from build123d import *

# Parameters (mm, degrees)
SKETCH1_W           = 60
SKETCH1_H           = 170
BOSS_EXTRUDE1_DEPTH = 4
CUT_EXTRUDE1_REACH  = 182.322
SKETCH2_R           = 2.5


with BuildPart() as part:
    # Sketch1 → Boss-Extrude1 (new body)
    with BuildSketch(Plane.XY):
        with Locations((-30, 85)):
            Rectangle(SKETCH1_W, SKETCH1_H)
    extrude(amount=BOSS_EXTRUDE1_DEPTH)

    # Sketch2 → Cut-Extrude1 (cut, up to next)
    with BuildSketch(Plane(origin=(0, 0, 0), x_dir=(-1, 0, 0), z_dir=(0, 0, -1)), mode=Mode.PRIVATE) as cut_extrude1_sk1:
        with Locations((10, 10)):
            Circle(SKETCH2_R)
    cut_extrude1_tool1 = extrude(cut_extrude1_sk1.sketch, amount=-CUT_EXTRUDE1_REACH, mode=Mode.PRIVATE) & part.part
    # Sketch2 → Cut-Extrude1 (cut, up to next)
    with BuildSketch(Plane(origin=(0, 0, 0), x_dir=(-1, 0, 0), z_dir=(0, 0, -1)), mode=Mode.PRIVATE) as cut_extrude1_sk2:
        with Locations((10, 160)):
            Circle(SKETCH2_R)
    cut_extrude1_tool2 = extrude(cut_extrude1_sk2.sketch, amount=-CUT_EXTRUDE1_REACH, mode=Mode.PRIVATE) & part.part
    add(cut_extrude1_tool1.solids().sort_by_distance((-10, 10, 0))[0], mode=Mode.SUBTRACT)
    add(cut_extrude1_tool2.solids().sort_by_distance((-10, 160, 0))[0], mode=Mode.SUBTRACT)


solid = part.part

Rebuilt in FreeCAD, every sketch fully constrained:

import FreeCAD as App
import Part
import Sketcher
from FreeCAD import Vector
Q = App.Units.Quantity

doc = App.newDocument("Part")
params = doc.addObject("Spreadsheet::Sheet", "Params")
for row, (alias, value) in enumerate([
    ("sketch1_width", "60 mm"),
    ("sketch1_height", "170 mm"),
    ("pad1_length", "4 mm"),
    ("sketch2_diameter", "5 mm"),
    ("sketch3_diameter", "5 mm"),
], start=1):
    params.set(f"A{row}", alias)
    params.set(f"B{row}", "=" + value)
    params.setAlias(f"B{row}", alias)

body = doc.addObject("PartDesign::Body", "Body")

# Sketch on XY plane
sketch1 = body.newObject("Sketcher::SketchObject", "Sketch")
sketch1.AttachmentSupport = (doc.getObject("XY_Plane"), [""])
sketch1.MapMode = "FlatFace"
sketch1.addGeometry([
    Part.LineSegment(Vector(-60, 170, 0), Vector(-60, 0, 0)),
    Part.LineSegment(Vector(-60, 0, 0), Vector(0, 0, 0)),
    Part.LineSegment(Vector(0, 0, 0), Vector(0, 170, 0)),
    Part.LineSegment(Vector(0, 170, 0), Vector(-60, 170, 0)),
], False)
sketch1.addConstraint([
    Sketcher.Constraint("Coincident", 0, 2, 1, 1),
    Sketcher.Constraint("Coincident", 1, 2, 2, 1),
    Sketcher.Constraint("Coincident", 2, 2, 3, 1),
    Sketcher.Constraint("Coincident", 3, 2, 0, 1),
    Sketcher.Constraint("Vertical", 0),
    Sketcher.Constraint("Horizontal", 1),
    Sketcher.Constraint("Vertical", 2),
    Sketcher.Constraint("Horizontal", 3),
    Sketcher.Constraint("Coincident", 1, 2, -1, 1),
    Sketcher.Constraint("DistanceX", 1, 1, 1, 2, Q("60 mm")),
    Sketcher.Constraint("DistanceY", 0, 2, 0, 1, Q("170 mm")),
])
sketch1.setExpression("Constraints[9]", "Params.sketch1_width")
sketch1.setExpression("Constraints[10]", "Params.sketch1_height")
pad1 = body.newObject("PartDesign::Pad", "Pad")
pad1.Profile = sketch1
pad1.setExpression("Length", "Params.pad1_length")

# Sketch on XY plane
sketch2 = body.newObject("Sketcher::SketchObject", "Sketch001")
sketch2.AttachmentSupport = (doc.getObject("XY_Plane"), [""])
sketch2.MapMode = "FlatFace"
sketch2.addGeometry(Part.Circle(Vector(-10, 10, 0), Vector(0, 0, 1), 2.5), False)
sketch2.addConstraint([
    Sketcher.Constraint("Diameter", 0, Q("5 mm")),
    Sketcher.Constraint("DistanceX", 0, 3, -1, 1, Q("10 mm")),
    Sketcher.Constraint("DistanceY", -1, 1, 0, 3, Q("10 mm")),
])
sketch2.setExpression("Constraints[0]", "Params.sketch2_diameter")
pocket1 = body.newObject("PartDesign::Pocket", "Pocket")
pocket1.Profile = sketch2
pocket1.Type = "UpToFirst"
pocket1.Reversed = True

# Sketch on XY plane
sketch3 = body.newObject("Sketcher::SketchObject", "Sketch002")
sketch3.AttachmentSupport = (doc.getObject("XY_Plane"), [""])
sketch3.MapMode = "FlatFace"
sketch3.addGeometry(Part.Circle(Vector(-10, 160, 0), Vector(0, 0, 1), 2.5), False)
sketch3.addConstraint([
    Sketcher.Constraint("Diameter", 0, Q("5 mm")),
    Sketcher.Constraint("DistanceX", 0, 3, -1, 1, Q("10 mm")),
    Sketcher.Constraint("DistanceY", -1, 1, 0, 3, Q("160 mm")),
])
sketch3.setExpression("Constraints[0]", "Params.sketch3_diameter")
pocket2 = body.newObject("PartDesign::Pocket", "Pocket001")
pocket2.Profile = sketch3
pocket2.Type = "UpToFirst"
pocket2.Reversed = True

doc.recompute()
